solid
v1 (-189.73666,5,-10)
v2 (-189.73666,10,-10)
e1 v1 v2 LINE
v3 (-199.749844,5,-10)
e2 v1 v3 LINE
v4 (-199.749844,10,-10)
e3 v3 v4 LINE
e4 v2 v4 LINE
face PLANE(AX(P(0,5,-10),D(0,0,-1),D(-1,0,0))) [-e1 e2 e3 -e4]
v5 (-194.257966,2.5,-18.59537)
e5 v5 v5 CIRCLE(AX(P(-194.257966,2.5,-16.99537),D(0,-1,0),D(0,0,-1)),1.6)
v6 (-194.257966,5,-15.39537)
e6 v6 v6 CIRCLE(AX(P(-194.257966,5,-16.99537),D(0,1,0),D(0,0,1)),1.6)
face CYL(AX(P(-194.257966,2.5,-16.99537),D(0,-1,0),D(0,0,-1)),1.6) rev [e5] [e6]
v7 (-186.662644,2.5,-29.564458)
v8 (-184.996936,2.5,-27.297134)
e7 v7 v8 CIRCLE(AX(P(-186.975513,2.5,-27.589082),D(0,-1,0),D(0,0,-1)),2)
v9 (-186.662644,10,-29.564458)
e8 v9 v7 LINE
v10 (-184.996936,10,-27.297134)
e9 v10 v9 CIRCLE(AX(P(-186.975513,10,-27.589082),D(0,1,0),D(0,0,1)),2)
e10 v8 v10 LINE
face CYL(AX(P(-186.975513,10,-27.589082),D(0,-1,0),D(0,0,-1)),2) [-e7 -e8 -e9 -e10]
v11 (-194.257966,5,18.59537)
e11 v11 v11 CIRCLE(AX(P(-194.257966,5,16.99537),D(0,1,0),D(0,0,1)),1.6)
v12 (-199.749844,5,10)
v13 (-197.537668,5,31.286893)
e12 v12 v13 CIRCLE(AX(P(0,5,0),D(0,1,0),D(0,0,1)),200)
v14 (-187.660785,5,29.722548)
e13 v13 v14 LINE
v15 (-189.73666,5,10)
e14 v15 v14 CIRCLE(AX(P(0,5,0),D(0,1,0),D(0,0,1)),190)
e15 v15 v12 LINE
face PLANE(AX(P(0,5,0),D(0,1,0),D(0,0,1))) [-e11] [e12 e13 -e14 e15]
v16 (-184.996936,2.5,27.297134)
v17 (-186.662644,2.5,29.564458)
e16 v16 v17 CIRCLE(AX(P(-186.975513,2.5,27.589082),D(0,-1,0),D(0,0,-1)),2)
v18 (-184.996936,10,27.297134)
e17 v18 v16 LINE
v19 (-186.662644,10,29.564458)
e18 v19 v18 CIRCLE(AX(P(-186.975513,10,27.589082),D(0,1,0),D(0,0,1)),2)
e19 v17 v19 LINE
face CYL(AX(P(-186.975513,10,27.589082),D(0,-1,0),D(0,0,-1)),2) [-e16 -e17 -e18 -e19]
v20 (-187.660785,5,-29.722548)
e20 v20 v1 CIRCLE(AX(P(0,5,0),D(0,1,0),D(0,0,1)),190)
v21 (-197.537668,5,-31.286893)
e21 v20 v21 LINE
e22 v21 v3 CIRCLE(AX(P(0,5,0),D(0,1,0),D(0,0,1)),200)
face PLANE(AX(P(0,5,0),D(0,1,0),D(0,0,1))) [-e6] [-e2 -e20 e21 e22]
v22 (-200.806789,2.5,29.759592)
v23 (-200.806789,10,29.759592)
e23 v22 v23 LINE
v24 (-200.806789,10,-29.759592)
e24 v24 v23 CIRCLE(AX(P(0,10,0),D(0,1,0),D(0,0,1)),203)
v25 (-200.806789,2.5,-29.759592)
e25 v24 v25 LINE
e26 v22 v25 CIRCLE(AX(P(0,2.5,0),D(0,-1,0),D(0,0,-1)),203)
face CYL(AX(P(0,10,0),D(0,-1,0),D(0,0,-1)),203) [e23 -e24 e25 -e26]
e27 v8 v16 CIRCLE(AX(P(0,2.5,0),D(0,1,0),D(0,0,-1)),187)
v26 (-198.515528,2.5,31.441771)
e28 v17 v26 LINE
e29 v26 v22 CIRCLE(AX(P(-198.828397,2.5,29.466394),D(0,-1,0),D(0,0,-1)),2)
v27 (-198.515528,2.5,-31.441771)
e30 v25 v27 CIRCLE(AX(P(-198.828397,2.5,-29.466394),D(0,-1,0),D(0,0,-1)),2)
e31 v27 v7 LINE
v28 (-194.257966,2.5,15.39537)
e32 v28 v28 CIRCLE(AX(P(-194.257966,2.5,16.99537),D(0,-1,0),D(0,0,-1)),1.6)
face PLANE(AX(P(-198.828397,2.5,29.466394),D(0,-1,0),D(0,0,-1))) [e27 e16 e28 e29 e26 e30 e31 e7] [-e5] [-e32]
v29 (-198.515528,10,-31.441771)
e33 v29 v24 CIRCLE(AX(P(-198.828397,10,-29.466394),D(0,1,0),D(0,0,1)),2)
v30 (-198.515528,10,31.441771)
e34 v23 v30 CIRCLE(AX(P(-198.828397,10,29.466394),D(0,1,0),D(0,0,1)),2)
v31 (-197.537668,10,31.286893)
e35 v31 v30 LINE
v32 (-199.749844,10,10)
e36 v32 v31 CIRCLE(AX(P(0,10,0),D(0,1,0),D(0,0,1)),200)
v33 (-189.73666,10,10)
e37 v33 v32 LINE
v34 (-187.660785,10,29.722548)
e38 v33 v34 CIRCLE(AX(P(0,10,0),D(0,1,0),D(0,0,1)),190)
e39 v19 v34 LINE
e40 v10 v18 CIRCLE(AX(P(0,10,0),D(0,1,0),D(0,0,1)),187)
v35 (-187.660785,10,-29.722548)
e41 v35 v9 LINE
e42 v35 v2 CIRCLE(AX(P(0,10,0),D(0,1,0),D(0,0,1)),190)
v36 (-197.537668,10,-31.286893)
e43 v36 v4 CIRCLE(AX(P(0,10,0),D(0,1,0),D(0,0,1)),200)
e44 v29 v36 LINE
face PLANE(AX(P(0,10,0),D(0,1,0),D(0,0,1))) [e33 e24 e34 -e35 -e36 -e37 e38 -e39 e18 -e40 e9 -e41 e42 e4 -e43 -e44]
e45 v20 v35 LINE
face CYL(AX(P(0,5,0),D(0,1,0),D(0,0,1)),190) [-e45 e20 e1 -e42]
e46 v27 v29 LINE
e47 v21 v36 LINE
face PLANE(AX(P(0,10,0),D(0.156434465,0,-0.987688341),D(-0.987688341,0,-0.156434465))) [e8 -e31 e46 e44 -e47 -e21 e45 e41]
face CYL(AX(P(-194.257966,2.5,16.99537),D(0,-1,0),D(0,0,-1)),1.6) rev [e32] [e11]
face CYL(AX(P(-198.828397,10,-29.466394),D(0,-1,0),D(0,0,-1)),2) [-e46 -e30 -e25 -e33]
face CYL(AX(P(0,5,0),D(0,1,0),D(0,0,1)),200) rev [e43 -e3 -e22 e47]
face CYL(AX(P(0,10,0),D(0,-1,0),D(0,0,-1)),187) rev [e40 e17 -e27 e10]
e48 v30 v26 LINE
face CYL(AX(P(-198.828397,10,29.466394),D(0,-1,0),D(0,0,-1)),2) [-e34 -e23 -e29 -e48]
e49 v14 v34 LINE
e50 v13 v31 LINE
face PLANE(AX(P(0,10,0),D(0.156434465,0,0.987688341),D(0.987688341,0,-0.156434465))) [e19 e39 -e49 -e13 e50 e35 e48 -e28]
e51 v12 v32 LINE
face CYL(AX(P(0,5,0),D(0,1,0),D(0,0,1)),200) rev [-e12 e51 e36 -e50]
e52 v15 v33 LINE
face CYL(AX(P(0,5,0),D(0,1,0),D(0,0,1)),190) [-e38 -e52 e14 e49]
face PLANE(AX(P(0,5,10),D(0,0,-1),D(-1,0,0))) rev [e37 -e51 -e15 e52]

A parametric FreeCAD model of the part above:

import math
import FreeCAD as App
import Part
import Sketcher
from FreeCAD import Vector
Q = App.Units.Quantity


def edges_at(feature, points):
    """Names of the edges that pass closest to the given points."""
    edges = feature.Shape.Edges
    near = lambda p: min(range(len(edges)), key=lambda i: edges[i].distToShape(Part.Vertex(*p))[0])
    return sorted({f"Edge{near(p) + 1}" for p in points})

doc = App.newDocument("Part")
body = doc.addObject("PartDesign::Body", "Body")

sketch1 = body.newObject("Sketcher::SketchObject", "Sketch")
sketch1.AttachmentSupport = (doc.getObject("XZ_Plane"), [""])
sketch1.MapMode = "FlatFace"
sketch1.addGeometry([
    Part.LineSegment(Vector(-197.5, 31.3, 0), Vector(-187.7, 29.7, 0)),
    Part.LineSegment(Vector(-187.7, 29.7, 0), Vector(-184.7, 29.3, 0)),
    Part.ArcOfCircle(Part.Circle(Vector(0, 0, 0), Vector(0, 0, 1), 187), math.radians(171), math.radians(189)),
    Part.LineSegment(Vector(-184.7, -29.3, 0), Vector(-187.7, -29.7, 0)),
    Part.LineSegment(Vector(-187.7, -29.7, 0), Vector(-197.5, -31.3, 0)),
    Part.LineSegment(Vector(-197.5, -31.3, 0), Vector(-200.5, -31.8, 0)),
    Part.ArcOfCircle(Part.Circle(Vector(0, 0, 0), Vector(0, 0, 1), 203), math.radians(171), math.radians(189)),
    Part.LineSegment(Vector(-200.5, 31.8, 0), Vector(-197.5, 31.3, 0)),
], False)
sketch1.addConstraint([
    Sketcher.Constraint("Coincident", 0, 2, 1, 1),
    Sketcher.Constraint("Coincident", 1, 2, 2, 1),
    Sketcher.Constraint("Coincident", 2, 2, 3, 1),
    Sketcher.Constraint("Coincident", 3, 2, 4, 1),
    Sketcher.Constraint("Coincident", 4, 2, 5, 1),
    Sketcher.Constraint("Coincident", 5, 2, 6, 2),
    Sketcher.Constraint("Coincident", 6, 1, 7, 1),
    Sketcher.Constraint("Coincident", 7, 2, 0, 1),
    Sketcher.Constraint("Coincident", 2, 3, -1, 1),
    Sketcher.Constraint("Coincident", 6, 3, -1, 1),
    Sketcher.Constraint("Symmetric", 0, 2, 3, 2, -1),
    Sketcher.Constraint("Symmetric", 4, 2, 7, 2, -1),
    Sketcher.Constraint("Parallel", 0, 1),
    Sketcher.Constraint("Parallel", 3, 4),
    Sketcher.Constraint("Parallel", 4, 5),
    Sketcher.Constraint("Parallel", 1, 7),
    Sketcher.Constraint("Equal", 3, 5),
    Sketcher.Constraint("Radius", 2, Q("187 mm")),
    Sketcher.Constraint("Radius", 6, Q("203 mm")),
    Sketcher.Constraint("Angle", 0, Q("-9 deg")),
    Sketcher.Constraint("Distance", 0, Q("10 mm")),
    Sketcher.Constraint("DistanceY", -1, 1, 0, 2, Q("29.722548 mm")),
])
pad1 = body.newObject("PartDesign::Pad", "Pad")
pad1.Profile = sketch1
pad1.Length = 10
pad1.Reversed = True

sketch2 = body.newObject("Sketcher::SketchObject", "Sketch001")
sketch2.AttachmentSupport = (doc.getObject("XZ_Plane"), [""])
sketch2.MapMode = "FlatFace"
sketch2.AttachmentOffset = App.Placement(Vector(0, 0, -10), App.Rotation())
sketch2.addGeometry([
    Part.LineSegment(Vector(-200, -10, 0), Vector(-190, -10, 0)),
    Part.ArcOfCircle(Part.Circle(Vector(0, 0, 0), Vector(0, 0, 1), 190), math.radians(-176.98), math.radians(-171)),
    Part.LineSegment(Vector(-188, -30, 0), Vector(-198, -31, 0)),
    Part.ArcOfCircle(Part.Circle(Vector(0, 0, 0), Vector(0, 0, 1), 200), math.radians(-177.13), math.radians(-171)),
    Part.ArcOfCircle(Part.Circle(Vector(0, 0, 0), Vector(0, 0, 1), 190), math.radians(171), math.radians(176.98)),
    Part.LineSegment(Vector(-190, 10, 0), Vector(-200, 10, 0)),
    Part.ArcOfCircle(Part.Circle(Vector(0, 0, 0), Vector(0, 0, 1), 200), math.radians(171), math.radians(177.13)),
    Part.LineSegment(Vector(-198, 31, 0), Vector(-188, 30, 0)),
], False)
sketch2.addConstraint([
    Sketcher.Constraint("Coincident", 0, 2, 1, 1),
    Sketcher.Constraint("Coincident", 1, 2, 2, 1),
    Sketcher.Constraint("Coincident", 2, 2, 3, 2),
    Sketcher.Constraint("Coincident", 3, 1, 0, 1),
    Sketcher.Constraint("Coincident", 4, 2, 5, 1),
    Sketcher.Constraint("Coincident", 5, 2, 6, 2),
    Sketcher.Constraint("Coincident", 6, 1, 7, 1),
    Sketcher.Constraint("Coincident", 7, 2, 4, 1),
    Sketcher.Constraint("Horizontal", 0),
    Sketcher.Constraint("Horizontal", 5),
    Sketcher.Constraint("Coincident", 1, 3, -1, 1),
    Sketcher.Constraint("Coincident", 3, 3, -1, 1),
    Sketcher.Constraint("Coincident", 4, 3, -1, 1),
    Sketcher.Constraint("Coincident", 6, 3, -1, 1),
    Sketcher.Constraint("Equal", 1, 4),
    Sketcher.Constraint("Equal", 3, 6),
    Sketcher.Constraint("Vertical", 0, 2, 4, 2),
    Sketcher.Constraint("Vertical", 2, 2, 6, 1),
    Sketcher.Constraint("Vertical", 1, 2, 7, 2),
    Sketcher.Constraint("Radius", 1, Q("190 mm")),
    Sketcher.Constraint("Radius", 3, Q("200 mm")),
    Sketcher.Constraint("Angle", 2, Q("-171 deg")),
    Sketcher.Constraint("DistanceY", 0, 2, -1, 1, Q("10 mm")),
    Sketcher.Constraint("DistanceY", 1, 2, -1, 1, Q("29.722548 mm")),
])
pocket1 = body.newObject("PartDesign::Pocket", "Pocket")
pocket1.Profile = sketch2
pocket1.Length = 5
pocket1.Reversed = True
doc.recompute()

fillet = body.newObject("PartDesign::Fillet", "Fillet")
fillet.Base = (pocket1, edges_at(pocket1, [
    (-200.501, 5, 31.756),
    (-200.501, 5, -31.756),
    (-184.698, 5, -29.253),
    (-184.698, 5, 29.253),
]))
fillet.Radius = 2

sketch3 = body.newObject("Sketcher::SketchObject", "Sketch002")
sketch3.AttachmentSupport = (doc.getObject("XZ_Plane"), [""])
sketch3.MapMode = "FlatFace"
sketch3.AttachmentOffset = App.Placement(Vector(0, 0, -2.5), App.Rotation())
sketch3.addGeometry([
    Part.LineSegment(Vector(-198.5, -31.4, 0), Vector(-186.7, -29.6, 0)),
    Part.ArcOfCircle(Part.Circle(Vector(-187, -27.6, 0), Vector(0, 0, 1), 2), math.radians(-81), math.radians(8)),
    Part.ArcOfCircle(Part.Circle(Vector(0, 0, 0), Vector(0, 0, 1), 187), math.radians(171.61), math.radians(188.39)),
    Part.ArcOfCircle(Part.Circle(Vector(-187, 27.6, 0), Vector(0, 0, 1), 2), math.radians(-8), math.radians(81)),
    Part.LineSegment(Vector(-186.7, 29.6, 0), Vector(-198.5, 31.4, 0)),
    Part.ArcOfCircle(Part.Circle(Vector(-198.8, 29.5, 0), Vector(0, 0, 1), 2), math.radians(81), math.radians(172)),
    Part.ArcOfCircle(Part.Circle(Vector(0, 0, 0), Vector(0, 0, 1), 203), math.radians(171.57), math.radians(188.43)),
    Part.ArcOfCircle(Part.Circle(Vector(-198.8, -29.5, 0), Vector(0, 0, 1), 2), math.radians(-172), math.radians(-81)),
], False)
sketch3.addConstraint([
    Sketcher.Constraint("Tangent", 0, 2, 1, 1),
    Sketcher.Constraint("Tangent", 1, 2, 2, 2),
    Sketcher.Constraint("Tangent", 2, 1, 3, 1),
    Sketcher.Constraint("Tangent", 3, 2, 4, 1),
    Sketcher.Constraint("Tangent", 4, 2, 5, 1),
    Sketcher.Constraint("Tangent", 5, 2, 6, 1),
    Sketcher.Constraint("Tangent", 6, 2, 7, 1),
    Sketcher.Constraint("Tangent", 7, 2, 0, 1),
    Sketcher.Constraint("Coincident", 2, 3, -1, 1),
    Sketcher.Constraint("Coincident", 6, 3, -1, 1),
    Sketcher.Constraint("Equal", 1, 3),
    Sketcher.Constraint("Equal", 3, 5),
    Sketcher.Constraint("Equal", 5, 7),
    Sketcher.Constraint("Symmetric", 0, 2, 3, 2, -1),
    Sketcher.Constraint("Radius", 1, Q("2 mm")),
    Sketcher.Constraint("Radius", 2, Q("187 mm")),
    Sketcher.Constraint("Radius", 6, Q("203 mm")),
    Sketcher.Constraint("Angle", 0, Q("9 deg")),
    Sketcher.Constraint("DistanceY", 1, 3, -1, 1, Q("27.589082 mm")),
])
pocket2 = body.newObject("PartDesign::Pocket", "Pocket001")
pocket2.Profile = sketch3
pocket2.Length = 2.5
pocket2.Reversed = True

sketch4 = body.newObject("Sketcher::SketchObject", "Sketch003")
sketch4.AttachmentSupport = (doc.getObject("XZ_Plane"), [""])
sketch4.MapMode = "FlatFace"
sketch4.AttachmentOffset = App.Placement(Vector(0, 0, -2.5), App.Rotation())
sketch4.addGeometry([
    Part.Circle(Vector(-194.3, -17, 0), Vector(0, 0, 1), 1.6),
    Part.Circle(Vector(-194.3, 17, 0), Vector(0, 0, 1), 1.6),
], False)
sketch4.addConstraint([
    Sketcher.Constraint("Equal", 0, 1),
    Sketcher.Constraint("Symmetric", 0, 3, 1, 3, -1),
    Sketcher.Constraint("Diameter", 0, Q("3.2 mm")),
    Sketcher.Constraint("DistanceY", 0, 3, -1, 1, Q("16.99537 mm")),
    Sketcher.Constraint("DistanceX", 0, 3, -1, 1, Q("194.257966 mm")),
])
doc.recompute()
hole = body.newObject("PartDesign::Hole", "Hole")
hole.Profile = sketch4
hole.ThreadType = "None"
hole.Diameter = 3.2
hole.DepthType = "ThroughAll"

doc.recompute()
